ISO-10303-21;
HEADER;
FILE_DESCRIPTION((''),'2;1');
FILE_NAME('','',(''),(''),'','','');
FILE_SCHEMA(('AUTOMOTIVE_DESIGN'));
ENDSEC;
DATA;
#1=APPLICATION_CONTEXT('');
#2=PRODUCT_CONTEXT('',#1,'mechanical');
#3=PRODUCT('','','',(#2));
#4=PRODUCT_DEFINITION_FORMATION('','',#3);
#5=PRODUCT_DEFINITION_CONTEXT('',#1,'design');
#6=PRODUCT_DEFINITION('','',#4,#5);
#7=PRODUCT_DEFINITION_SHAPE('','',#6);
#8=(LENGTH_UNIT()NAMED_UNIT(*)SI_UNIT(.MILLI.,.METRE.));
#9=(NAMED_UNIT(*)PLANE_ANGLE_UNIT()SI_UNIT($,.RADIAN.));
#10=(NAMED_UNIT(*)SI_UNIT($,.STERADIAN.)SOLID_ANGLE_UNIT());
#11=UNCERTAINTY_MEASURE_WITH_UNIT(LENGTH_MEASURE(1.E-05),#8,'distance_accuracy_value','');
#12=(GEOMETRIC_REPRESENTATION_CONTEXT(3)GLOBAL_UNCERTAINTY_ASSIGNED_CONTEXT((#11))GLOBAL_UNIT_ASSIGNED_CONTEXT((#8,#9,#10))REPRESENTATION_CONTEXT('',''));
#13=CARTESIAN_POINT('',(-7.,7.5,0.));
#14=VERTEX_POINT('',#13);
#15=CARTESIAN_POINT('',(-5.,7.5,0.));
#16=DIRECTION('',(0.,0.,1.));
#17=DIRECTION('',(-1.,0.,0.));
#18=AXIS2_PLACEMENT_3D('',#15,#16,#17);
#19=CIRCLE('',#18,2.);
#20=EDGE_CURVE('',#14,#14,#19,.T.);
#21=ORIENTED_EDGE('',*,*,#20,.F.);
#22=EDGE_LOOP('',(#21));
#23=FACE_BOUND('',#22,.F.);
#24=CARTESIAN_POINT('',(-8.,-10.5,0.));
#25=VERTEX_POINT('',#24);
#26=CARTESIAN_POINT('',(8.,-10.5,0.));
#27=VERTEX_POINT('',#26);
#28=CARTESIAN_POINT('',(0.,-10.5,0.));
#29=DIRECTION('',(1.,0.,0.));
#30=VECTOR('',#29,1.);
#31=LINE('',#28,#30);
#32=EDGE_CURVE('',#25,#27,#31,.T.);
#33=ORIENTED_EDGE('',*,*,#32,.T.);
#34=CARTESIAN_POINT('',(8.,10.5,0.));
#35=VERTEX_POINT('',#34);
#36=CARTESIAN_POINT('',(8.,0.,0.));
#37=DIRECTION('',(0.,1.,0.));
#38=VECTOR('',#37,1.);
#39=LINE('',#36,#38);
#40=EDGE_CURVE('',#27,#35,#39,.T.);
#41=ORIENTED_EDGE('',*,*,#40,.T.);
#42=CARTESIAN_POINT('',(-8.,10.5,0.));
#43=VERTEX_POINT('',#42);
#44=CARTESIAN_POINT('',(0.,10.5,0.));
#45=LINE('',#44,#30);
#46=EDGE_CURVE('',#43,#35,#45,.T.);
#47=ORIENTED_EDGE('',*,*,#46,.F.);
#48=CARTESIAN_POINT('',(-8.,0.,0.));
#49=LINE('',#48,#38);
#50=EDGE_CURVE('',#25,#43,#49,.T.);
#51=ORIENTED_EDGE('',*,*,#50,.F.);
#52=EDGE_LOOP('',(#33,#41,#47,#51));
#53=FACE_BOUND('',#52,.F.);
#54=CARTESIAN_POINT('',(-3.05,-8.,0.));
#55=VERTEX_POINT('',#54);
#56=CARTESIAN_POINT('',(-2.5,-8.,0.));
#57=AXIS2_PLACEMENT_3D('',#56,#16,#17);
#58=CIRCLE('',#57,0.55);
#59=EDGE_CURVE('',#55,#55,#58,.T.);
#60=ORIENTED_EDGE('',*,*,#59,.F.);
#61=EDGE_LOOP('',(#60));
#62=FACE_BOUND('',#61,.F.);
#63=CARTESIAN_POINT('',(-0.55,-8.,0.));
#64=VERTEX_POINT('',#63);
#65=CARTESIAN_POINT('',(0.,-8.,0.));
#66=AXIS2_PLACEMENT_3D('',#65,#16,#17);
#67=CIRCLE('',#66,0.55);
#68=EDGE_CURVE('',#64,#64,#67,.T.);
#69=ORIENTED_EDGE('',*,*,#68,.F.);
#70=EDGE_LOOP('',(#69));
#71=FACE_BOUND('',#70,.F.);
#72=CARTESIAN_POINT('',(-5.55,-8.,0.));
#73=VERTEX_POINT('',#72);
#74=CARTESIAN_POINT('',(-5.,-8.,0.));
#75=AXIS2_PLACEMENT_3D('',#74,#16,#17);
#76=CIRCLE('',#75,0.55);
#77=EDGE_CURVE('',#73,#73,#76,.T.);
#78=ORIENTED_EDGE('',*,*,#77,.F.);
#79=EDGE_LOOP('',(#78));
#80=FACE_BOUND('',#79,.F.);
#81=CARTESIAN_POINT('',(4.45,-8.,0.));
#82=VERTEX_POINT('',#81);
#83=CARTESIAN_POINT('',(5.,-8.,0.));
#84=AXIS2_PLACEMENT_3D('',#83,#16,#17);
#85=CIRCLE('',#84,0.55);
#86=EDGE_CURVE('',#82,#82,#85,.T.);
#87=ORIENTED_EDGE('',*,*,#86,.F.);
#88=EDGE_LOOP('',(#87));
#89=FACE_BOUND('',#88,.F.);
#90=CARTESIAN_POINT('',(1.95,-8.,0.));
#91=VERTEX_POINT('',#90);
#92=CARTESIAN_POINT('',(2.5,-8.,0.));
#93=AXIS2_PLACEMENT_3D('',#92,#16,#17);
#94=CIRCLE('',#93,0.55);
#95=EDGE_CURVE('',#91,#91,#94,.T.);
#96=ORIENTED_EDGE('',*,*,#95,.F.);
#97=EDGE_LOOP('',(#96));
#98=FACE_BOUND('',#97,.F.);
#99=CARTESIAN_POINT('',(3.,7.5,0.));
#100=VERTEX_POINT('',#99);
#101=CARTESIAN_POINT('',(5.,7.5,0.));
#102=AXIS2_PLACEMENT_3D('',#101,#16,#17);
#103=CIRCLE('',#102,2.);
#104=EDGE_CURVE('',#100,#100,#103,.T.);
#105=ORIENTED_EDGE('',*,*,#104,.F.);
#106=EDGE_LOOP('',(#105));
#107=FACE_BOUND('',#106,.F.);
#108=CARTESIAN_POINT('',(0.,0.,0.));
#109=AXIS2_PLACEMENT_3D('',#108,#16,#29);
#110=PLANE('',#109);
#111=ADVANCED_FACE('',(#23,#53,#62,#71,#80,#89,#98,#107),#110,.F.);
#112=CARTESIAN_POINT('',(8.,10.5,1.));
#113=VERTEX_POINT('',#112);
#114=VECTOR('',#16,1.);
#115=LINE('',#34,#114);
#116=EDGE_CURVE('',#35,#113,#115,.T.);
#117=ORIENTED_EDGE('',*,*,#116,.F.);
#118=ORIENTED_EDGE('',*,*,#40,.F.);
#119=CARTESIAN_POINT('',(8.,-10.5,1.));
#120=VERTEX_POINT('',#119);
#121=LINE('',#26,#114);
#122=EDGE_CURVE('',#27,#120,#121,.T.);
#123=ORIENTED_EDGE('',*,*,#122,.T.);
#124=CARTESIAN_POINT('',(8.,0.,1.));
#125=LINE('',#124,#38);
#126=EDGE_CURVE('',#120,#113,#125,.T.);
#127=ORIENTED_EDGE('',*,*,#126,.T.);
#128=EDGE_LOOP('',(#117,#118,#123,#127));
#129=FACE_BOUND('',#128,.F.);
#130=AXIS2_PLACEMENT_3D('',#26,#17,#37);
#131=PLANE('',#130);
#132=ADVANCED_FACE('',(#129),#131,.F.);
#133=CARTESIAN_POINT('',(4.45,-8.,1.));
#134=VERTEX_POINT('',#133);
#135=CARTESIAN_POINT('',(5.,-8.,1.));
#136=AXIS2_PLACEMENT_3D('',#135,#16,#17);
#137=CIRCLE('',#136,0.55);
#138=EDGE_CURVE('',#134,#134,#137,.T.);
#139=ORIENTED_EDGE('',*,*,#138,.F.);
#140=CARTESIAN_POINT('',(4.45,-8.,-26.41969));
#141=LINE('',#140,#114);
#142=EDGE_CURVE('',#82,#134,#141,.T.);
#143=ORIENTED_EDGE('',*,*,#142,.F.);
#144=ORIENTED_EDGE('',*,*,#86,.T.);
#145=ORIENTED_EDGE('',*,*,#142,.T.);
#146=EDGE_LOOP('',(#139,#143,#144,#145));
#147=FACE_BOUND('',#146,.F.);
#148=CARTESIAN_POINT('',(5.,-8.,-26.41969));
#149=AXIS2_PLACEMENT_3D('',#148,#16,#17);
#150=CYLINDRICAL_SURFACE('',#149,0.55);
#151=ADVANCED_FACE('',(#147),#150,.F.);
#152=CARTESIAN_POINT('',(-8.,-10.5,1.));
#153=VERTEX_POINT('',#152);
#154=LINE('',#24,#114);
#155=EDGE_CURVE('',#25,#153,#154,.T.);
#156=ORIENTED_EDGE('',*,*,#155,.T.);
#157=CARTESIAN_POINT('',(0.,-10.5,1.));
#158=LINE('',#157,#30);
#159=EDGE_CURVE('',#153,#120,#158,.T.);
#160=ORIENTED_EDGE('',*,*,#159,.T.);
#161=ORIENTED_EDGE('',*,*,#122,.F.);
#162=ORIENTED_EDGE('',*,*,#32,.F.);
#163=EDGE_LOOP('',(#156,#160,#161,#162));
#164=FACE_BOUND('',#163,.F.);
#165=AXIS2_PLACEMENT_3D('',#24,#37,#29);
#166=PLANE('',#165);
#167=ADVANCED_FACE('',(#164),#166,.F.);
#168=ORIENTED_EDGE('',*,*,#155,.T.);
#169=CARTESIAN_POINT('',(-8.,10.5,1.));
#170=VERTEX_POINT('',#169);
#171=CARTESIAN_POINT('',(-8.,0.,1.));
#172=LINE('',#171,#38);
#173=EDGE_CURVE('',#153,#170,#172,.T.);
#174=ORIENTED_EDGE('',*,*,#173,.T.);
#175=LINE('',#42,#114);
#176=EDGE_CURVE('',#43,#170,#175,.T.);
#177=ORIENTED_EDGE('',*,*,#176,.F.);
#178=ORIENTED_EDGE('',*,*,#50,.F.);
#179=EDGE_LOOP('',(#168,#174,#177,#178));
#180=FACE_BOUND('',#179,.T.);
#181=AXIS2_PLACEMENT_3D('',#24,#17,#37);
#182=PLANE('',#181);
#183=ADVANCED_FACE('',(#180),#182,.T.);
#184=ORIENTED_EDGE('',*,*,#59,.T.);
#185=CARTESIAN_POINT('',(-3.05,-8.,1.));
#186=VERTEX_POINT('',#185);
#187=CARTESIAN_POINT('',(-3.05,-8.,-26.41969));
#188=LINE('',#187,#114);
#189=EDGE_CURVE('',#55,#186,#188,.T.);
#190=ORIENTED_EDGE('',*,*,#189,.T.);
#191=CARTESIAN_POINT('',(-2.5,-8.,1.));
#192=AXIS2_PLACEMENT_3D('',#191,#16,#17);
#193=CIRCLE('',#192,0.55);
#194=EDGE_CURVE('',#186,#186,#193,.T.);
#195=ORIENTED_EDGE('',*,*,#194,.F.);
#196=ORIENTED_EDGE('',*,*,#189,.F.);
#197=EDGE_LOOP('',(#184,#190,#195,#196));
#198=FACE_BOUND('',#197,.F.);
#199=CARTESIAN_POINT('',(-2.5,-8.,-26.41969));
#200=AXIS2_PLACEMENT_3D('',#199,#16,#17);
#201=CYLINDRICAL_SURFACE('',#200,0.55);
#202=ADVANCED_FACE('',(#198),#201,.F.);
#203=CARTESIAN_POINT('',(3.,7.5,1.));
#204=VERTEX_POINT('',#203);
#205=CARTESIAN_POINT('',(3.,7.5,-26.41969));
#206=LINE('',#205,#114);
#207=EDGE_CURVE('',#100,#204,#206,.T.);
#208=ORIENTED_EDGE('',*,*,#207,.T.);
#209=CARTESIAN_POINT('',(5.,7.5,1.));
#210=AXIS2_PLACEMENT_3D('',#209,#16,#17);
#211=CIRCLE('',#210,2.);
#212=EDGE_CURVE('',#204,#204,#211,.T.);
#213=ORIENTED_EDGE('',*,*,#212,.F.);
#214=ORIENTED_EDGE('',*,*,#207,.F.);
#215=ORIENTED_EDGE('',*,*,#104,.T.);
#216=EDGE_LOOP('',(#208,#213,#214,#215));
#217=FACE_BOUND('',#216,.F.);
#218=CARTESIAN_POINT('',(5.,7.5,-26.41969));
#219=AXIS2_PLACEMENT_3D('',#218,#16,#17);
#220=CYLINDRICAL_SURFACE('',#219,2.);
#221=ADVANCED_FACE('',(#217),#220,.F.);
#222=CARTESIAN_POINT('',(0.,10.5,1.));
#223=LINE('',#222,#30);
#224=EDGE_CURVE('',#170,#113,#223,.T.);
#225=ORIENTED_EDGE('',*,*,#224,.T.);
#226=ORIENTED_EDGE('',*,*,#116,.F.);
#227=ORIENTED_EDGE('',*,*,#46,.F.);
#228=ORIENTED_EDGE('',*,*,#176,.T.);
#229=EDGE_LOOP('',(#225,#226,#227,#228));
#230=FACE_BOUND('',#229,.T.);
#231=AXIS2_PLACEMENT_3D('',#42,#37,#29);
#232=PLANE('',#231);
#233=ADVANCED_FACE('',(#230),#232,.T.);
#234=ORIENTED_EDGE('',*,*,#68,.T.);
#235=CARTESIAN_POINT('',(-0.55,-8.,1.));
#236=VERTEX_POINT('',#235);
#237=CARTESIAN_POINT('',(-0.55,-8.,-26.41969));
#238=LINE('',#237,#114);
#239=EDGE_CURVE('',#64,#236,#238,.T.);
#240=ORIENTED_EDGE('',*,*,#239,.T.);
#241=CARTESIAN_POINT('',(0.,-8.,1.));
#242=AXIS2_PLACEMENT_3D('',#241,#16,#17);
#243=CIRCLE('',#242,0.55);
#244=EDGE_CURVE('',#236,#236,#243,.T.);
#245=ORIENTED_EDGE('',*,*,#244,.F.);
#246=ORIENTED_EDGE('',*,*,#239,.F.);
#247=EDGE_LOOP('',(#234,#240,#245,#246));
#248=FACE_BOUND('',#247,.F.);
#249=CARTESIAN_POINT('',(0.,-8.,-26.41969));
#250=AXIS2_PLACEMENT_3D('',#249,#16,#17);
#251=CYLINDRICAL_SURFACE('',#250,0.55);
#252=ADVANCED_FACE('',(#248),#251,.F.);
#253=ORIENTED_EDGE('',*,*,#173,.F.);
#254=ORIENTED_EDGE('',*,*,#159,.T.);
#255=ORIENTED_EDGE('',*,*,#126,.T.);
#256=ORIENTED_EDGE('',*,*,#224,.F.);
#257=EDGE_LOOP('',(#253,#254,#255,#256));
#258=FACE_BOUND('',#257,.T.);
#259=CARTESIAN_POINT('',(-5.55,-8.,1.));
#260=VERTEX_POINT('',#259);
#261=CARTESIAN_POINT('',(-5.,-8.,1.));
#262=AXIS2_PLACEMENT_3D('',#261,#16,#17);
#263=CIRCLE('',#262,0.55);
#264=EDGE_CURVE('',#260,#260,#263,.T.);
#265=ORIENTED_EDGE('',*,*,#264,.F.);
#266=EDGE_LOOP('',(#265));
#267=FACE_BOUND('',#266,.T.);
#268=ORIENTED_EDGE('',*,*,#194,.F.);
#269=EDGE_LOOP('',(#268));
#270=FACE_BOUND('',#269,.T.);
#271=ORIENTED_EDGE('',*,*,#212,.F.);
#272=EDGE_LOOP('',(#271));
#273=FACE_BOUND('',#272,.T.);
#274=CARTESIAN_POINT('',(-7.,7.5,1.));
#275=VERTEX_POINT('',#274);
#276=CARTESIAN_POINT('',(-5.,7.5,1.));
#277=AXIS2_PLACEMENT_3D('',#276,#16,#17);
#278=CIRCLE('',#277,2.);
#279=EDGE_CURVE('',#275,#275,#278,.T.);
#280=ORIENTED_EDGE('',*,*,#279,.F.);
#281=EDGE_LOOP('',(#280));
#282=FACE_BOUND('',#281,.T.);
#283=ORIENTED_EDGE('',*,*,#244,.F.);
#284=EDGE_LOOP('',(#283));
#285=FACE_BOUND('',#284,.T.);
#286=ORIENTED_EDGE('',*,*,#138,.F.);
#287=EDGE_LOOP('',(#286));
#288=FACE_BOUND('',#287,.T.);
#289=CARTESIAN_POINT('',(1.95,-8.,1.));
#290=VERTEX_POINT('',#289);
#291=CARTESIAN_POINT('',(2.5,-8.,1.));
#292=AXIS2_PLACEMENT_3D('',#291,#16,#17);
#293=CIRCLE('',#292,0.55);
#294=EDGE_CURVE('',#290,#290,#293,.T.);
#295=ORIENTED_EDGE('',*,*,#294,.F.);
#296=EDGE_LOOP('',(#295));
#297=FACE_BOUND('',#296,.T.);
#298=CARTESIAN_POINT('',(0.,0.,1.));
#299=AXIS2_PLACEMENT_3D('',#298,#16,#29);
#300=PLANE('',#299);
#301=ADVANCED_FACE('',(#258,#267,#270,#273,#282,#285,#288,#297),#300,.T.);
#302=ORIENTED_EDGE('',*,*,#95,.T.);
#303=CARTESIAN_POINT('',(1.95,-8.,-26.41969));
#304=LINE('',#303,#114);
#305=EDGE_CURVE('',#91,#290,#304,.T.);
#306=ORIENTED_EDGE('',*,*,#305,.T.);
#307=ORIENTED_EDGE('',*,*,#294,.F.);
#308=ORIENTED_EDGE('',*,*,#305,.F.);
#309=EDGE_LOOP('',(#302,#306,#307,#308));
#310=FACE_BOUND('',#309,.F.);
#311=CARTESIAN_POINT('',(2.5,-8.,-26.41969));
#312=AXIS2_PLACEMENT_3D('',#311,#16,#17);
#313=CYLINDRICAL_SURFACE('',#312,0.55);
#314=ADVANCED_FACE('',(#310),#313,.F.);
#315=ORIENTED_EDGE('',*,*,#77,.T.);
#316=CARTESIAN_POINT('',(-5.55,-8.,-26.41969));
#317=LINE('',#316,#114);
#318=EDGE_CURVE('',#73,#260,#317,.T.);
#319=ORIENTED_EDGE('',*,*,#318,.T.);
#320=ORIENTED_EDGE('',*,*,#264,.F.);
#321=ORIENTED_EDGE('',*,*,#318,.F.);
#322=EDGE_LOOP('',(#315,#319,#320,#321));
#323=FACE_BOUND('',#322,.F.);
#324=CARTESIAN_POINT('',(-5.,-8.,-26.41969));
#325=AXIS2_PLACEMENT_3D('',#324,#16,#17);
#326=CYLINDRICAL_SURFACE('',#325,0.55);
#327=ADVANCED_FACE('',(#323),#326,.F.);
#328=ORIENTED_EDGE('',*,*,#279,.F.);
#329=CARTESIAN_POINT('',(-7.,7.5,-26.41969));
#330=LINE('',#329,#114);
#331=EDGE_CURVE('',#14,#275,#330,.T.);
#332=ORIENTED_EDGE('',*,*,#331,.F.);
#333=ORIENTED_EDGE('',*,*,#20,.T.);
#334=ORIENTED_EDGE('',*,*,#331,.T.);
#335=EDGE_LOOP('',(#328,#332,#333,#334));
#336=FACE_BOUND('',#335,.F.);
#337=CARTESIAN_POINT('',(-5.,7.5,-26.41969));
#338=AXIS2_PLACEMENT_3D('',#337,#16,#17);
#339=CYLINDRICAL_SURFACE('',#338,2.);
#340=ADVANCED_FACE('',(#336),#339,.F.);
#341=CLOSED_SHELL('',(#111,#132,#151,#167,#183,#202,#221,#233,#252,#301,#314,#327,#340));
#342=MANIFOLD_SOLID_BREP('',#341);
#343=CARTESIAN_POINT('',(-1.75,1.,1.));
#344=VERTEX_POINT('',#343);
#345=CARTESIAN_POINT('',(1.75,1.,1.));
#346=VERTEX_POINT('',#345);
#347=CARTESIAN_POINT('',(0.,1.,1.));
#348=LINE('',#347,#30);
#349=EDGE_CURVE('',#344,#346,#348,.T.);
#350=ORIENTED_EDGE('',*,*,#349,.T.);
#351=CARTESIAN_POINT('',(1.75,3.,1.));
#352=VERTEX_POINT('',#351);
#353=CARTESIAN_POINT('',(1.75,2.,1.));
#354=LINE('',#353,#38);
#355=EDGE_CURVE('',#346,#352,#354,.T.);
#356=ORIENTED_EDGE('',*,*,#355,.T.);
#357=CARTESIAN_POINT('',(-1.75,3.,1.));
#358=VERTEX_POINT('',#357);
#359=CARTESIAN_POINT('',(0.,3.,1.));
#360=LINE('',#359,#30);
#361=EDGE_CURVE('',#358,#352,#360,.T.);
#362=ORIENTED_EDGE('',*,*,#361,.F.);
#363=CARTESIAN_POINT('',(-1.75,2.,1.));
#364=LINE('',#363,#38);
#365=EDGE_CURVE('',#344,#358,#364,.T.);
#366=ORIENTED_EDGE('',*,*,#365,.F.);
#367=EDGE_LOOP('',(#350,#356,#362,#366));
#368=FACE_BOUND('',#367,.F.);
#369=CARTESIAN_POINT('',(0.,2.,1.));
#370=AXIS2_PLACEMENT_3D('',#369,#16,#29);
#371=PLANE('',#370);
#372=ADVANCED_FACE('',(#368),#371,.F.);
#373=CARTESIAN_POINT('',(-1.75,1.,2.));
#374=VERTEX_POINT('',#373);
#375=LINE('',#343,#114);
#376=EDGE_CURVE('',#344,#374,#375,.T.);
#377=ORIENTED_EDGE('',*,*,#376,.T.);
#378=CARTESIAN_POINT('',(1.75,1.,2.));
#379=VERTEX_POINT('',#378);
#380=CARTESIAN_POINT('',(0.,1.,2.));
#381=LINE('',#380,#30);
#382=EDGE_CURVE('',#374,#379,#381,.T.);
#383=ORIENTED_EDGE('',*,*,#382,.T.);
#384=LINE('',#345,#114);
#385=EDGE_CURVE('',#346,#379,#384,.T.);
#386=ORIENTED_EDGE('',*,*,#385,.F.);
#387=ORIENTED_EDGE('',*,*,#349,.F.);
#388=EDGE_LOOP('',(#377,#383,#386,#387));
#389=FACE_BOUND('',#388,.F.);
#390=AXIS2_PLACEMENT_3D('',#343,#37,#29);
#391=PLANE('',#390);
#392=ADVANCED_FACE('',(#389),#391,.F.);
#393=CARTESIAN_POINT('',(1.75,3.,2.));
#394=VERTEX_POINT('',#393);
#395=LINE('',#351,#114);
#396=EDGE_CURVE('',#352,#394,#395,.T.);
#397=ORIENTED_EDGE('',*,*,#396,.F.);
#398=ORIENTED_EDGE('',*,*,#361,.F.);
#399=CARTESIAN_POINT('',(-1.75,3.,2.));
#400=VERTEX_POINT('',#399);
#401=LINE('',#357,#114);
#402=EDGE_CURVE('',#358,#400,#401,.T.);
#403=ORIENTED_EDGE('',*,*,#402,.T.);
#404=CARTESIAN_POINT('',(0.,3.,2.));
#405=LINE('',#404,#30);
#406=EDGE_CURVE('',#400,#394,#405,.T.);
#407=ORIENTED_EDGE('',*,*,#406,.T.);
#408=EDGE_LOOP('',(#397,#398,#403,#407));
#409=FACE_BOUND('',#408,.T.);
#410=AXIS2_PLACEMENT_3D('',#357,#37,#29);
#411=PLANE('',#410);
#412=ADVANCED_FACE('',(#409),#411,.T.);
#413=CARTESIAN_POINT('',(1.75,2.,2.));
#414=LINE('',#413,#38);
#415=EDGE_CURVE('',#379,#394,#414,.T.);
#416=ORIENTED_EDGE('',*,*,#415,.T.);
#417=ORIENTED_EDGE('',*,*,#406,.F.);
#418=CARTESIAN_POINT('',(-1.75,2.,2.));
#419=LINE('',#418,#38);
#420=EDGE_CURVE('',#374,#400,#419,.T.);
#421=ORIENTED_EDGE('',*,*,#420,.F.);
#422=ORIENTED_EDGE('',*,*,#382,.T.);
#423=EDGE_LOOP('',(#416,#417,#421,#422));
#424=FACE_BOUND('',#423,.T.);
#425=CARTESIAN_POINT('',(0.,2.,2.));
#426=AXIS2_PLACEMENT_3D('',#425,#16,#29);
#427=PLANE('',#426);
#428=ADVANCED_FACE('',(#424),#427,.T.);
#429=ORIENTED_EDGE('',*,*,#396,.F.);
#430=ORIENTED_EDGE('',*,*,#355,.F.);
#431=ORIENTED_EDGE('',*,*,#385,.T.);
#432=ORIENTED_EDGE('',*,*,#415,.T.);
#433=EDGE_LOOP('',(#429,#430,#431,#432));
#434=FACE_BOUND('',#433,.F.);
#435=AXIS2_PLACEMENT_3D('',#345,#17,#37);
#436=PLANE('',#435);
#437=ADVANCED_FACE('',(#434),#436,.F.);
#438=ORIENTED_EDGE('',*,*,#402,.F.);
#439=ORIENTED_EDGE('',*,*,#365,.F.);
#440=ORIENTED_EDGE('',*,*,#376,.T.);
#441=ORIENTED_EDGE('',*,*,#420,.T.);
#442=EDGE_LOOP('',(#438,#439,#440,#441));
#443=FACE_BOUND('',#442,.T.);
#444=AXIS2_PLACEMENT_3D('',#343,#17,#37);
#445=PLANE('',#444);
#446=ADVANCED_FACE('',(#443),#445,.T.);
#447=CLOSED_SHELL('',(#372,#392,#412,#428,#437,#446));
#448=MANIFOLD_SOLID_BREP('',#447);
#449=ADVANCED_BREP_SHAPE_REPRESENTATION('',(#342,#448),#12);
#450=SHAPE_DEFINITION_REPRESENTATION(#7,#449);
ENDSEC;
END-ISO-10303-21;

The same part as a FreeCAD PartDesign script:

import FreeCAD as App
import Part
import Sketcher

doc = App.newDocument("Part")
body = doc.addObject("PartDesign::Body", "Body")

sketch1 = doc.addObject("Sketcher::SketchObject", "Sketch")
body.addObject(sketch1)
sketch1.AttachmentSupport = (doc.XY_Plane, [""])
sketch1.MapMode = "FlatFace"
sketch1.addGeometry([
    Part.LineSegment(App.Vector(-8, 10, 0), App.Vector(-8, -10, 0)),
    Part.LineSegment(App.Vector(-8, -10, 0), App.Vector(8, -10, 0)),
    Part.LineSegment(App.Vector(8, -10, 0), App.Vector(8, 10, 0)),
    Part.LineSegment(App.Vector(8, 10, 0), App.Vector(-8, 10, 0)),
], False)
sketch1.addConstraint([
    Sketcher.Constraint("Coincident", 0, 2, 1, 1),
    Sketcher.Constraint("Coincident", 1, 2, 2, 1),
    Sketcher.Constraint("Coincident", 2, 2, 3, 1),
    Sketcher.Constraint("Coincident", 3, 2, 0, 1),
    Sketcher.Constraint("Vertical", 0),
    Sketcher.Constraint("Horizontal", 1),
    Sketcher.Constraint("Vertical", 2),
    Sketcher.Constraint("Horizontal", 3),
    Sketcher.Constraint("Symmetric", 0, 2, 2, 2, -1, 1),
    Sketcher.Constraint("DistanceX", 1, 1, 1, 2, 16.0),
    Sketcher.Constraint("DistanceY", 0, 2, 0, 1, 21.0),
])
pad1 = doc.addObject("PartDesign::Pad", "Pad")
body.addObject(pad1)
pad1.Profile = sketch1
pad1.Length = 1

sketch2 = doc.addObject("Sketcher::SketchObject", "Sketch001")
body.addObject(sketch2)
sketch2.AttachmentSupport = (doc.XY_Plane, [""])
sketch2.MapMode = "FlatFace"
sketch2.addGeometry([
    Part.Circle(App.Vector(-5, -8, 0), App.Vector(0, 0, 1), 0.6),
    Part.Circle(App.Vector(-2.5, -8, 0), App.Vector(0, 0, 1), 0.6),
    Part.Circle(App.Vector(0, -8, 0), App.Vector(0, 0, 1), 0.6),
    Part.Circle(App.Vector(2.5, -8, 0), App.Vector(0, 0, 1), 0.6),
    Part.Circle(App.Vector(5, -8, 0), App.Vector(0, 0, 1), 0.6),
], False)
sketch2.addConstraint([
    Sketcher.Constraint("Equal", 0, 1),
    Sketcher.Constraint("Equal", 1, 2),
    Sketcher.Constraint("Equal", 2, 3),
    Sketcher.Constraint("Equal", 3, 4),
    Sketcher.Constraint("Symmetric", 1, 3, 3, 3, -2),
    Sketcher.Constraint("Symmetric", 0, 3, 4, 3, -2),
    Sketcher.Constraint("PointOnObject", 2, 3, -2),
    Sketcher.Constraint("Horizontal", 0, 3, 1, 3),
    Sketcher.Constraint("Horizontal", 1, 3, 2, 3),
    Sketcher.Constraint("Diameter", 0, 1.1),
    Sketcher.Constraint("DistanceX", 0, 3, -1, 1, 5.0),
    Sketcher.Constraint("DistanceY", 0, 3, -1, 1, 8.0),
    Sketcher.Constraint("DistanceX", 1, 3, 3, 3, 5.0),
])
doc.recompute()
hole = doc.addObject("PartDesign::Hole", "Hole")
body.addObject(hole)
hole.Profile = sketch2
hole.ThreadType = "None"
hole.Diameter = 1.1
hole.DepthType = "ThroughAll"
hole.Reversed = True

sketch3 = doc.addObject("Sketcher::SketchObject", "Sketch002")
body.addObject(sketch3)
sketch3.AttachmentSupport = (doc.XY_Plane, [""])
sketch3.MapMode = "FlatFace"
sketch3.addGeometry([
    Part.Circle(App.Vector(-5, 7.5, 0), App.Vector(0, 0, 1), 2),
    Part.Circle(App.Vector(5, 7.5, 0), App.Vector(0, 0, 1), 2),
], False)
sketch3.addConstraint([
    Sketcher.Constraint("Equal", 0, 1),
    Sketcher.Constraint("Symmetric", 0, 3, 1, 3, -2),
    Sketcher.Constraint("Diameter", 0, 4.0),
    Sketcher.Constraint("DistanceX", 0, 3, -1, 1, 5.0),
    Sketcher.Constraint("DistanceY", -1, 1, 0, 3, 7.5),
])
doc.recompute()
hole2 = doc.addObject("PartDesign::Hole", "Hole001")
body.addObject(hole2)
hole2.Profile = sketch3
hole2.ThreadType = "None"
hole2.Diameter = 4
hole2.DepthType = "ThroughAll"
hole2.Reversed = True
body2 = doc.addObject("PartDesign::Body", "Body001")

sketch4 = doc.addObject("Sketcher::SketchObject", "Sketch003")
body2.addObject(sketch4)
sketch4.AttachmentSupport = (doc.getObject("XY_Plane001"), [""])
sketch4.MapMode = "FlatFace"
sketch4.AttachmentOffset = App.Placement(App.Vector(0, 0, 1), App.Rotation())
sketch4.addGeometry([
    Part.LineSegment(App.Vector(-1.8, 3, 0), App.Vector(-1.8, 1, 0)),
    Part.LineSegment(App.Vector(-1.8, 1, 0), App.Vector(1.8, 1, 0)),
    Part.LineSegment(App.Vector(1.8, 1, 0), App.Vector(1.8, 3, 0)),
    Part.LineSegment(App.Vector(1.8, 3, 0), App.Vector(-1.8, 3, 0)),
], False)
sketch4.addConstraint([
    Sketcher.Constraint("Coincident", 0, 2, 1, 1),
    Sketcher.Constraint("Coincident", 1, 2, 2, 1),
    Sketcher.Constraint("Coincident", 2, 2, 3, 1),
    Sketcher.Constraint("Coincident", 3, 2, 0, 1),
    Sketcher.Constraint("Vertical", 0),
    Sketcher.Constraint("Horizontal", 1),
    Sketcher.Constraint("Vertical", 2),
    Sketcher.Constraint("Horizontal", 3),
    Sketcher.Constraint("DistanceY", 0, 2, 0, 1, 2.0),
    Sketcher.Constraint("DistanceX", 1, 1, 1, 2, 3.5),
    Sketcher.Constraint("DistanceY", -1, 1, 0, 2, 1.0),
    Sketcher.Constraint("DistanceX", 0, 2, -1, 1, 1.75),
])
pad2 = doc.addObject("PartDesign::Pad", "Pad001")
body2.addObject(pad2)
pad2.Profile = sketch4
pad2.Length = 1

doc.recompute()
